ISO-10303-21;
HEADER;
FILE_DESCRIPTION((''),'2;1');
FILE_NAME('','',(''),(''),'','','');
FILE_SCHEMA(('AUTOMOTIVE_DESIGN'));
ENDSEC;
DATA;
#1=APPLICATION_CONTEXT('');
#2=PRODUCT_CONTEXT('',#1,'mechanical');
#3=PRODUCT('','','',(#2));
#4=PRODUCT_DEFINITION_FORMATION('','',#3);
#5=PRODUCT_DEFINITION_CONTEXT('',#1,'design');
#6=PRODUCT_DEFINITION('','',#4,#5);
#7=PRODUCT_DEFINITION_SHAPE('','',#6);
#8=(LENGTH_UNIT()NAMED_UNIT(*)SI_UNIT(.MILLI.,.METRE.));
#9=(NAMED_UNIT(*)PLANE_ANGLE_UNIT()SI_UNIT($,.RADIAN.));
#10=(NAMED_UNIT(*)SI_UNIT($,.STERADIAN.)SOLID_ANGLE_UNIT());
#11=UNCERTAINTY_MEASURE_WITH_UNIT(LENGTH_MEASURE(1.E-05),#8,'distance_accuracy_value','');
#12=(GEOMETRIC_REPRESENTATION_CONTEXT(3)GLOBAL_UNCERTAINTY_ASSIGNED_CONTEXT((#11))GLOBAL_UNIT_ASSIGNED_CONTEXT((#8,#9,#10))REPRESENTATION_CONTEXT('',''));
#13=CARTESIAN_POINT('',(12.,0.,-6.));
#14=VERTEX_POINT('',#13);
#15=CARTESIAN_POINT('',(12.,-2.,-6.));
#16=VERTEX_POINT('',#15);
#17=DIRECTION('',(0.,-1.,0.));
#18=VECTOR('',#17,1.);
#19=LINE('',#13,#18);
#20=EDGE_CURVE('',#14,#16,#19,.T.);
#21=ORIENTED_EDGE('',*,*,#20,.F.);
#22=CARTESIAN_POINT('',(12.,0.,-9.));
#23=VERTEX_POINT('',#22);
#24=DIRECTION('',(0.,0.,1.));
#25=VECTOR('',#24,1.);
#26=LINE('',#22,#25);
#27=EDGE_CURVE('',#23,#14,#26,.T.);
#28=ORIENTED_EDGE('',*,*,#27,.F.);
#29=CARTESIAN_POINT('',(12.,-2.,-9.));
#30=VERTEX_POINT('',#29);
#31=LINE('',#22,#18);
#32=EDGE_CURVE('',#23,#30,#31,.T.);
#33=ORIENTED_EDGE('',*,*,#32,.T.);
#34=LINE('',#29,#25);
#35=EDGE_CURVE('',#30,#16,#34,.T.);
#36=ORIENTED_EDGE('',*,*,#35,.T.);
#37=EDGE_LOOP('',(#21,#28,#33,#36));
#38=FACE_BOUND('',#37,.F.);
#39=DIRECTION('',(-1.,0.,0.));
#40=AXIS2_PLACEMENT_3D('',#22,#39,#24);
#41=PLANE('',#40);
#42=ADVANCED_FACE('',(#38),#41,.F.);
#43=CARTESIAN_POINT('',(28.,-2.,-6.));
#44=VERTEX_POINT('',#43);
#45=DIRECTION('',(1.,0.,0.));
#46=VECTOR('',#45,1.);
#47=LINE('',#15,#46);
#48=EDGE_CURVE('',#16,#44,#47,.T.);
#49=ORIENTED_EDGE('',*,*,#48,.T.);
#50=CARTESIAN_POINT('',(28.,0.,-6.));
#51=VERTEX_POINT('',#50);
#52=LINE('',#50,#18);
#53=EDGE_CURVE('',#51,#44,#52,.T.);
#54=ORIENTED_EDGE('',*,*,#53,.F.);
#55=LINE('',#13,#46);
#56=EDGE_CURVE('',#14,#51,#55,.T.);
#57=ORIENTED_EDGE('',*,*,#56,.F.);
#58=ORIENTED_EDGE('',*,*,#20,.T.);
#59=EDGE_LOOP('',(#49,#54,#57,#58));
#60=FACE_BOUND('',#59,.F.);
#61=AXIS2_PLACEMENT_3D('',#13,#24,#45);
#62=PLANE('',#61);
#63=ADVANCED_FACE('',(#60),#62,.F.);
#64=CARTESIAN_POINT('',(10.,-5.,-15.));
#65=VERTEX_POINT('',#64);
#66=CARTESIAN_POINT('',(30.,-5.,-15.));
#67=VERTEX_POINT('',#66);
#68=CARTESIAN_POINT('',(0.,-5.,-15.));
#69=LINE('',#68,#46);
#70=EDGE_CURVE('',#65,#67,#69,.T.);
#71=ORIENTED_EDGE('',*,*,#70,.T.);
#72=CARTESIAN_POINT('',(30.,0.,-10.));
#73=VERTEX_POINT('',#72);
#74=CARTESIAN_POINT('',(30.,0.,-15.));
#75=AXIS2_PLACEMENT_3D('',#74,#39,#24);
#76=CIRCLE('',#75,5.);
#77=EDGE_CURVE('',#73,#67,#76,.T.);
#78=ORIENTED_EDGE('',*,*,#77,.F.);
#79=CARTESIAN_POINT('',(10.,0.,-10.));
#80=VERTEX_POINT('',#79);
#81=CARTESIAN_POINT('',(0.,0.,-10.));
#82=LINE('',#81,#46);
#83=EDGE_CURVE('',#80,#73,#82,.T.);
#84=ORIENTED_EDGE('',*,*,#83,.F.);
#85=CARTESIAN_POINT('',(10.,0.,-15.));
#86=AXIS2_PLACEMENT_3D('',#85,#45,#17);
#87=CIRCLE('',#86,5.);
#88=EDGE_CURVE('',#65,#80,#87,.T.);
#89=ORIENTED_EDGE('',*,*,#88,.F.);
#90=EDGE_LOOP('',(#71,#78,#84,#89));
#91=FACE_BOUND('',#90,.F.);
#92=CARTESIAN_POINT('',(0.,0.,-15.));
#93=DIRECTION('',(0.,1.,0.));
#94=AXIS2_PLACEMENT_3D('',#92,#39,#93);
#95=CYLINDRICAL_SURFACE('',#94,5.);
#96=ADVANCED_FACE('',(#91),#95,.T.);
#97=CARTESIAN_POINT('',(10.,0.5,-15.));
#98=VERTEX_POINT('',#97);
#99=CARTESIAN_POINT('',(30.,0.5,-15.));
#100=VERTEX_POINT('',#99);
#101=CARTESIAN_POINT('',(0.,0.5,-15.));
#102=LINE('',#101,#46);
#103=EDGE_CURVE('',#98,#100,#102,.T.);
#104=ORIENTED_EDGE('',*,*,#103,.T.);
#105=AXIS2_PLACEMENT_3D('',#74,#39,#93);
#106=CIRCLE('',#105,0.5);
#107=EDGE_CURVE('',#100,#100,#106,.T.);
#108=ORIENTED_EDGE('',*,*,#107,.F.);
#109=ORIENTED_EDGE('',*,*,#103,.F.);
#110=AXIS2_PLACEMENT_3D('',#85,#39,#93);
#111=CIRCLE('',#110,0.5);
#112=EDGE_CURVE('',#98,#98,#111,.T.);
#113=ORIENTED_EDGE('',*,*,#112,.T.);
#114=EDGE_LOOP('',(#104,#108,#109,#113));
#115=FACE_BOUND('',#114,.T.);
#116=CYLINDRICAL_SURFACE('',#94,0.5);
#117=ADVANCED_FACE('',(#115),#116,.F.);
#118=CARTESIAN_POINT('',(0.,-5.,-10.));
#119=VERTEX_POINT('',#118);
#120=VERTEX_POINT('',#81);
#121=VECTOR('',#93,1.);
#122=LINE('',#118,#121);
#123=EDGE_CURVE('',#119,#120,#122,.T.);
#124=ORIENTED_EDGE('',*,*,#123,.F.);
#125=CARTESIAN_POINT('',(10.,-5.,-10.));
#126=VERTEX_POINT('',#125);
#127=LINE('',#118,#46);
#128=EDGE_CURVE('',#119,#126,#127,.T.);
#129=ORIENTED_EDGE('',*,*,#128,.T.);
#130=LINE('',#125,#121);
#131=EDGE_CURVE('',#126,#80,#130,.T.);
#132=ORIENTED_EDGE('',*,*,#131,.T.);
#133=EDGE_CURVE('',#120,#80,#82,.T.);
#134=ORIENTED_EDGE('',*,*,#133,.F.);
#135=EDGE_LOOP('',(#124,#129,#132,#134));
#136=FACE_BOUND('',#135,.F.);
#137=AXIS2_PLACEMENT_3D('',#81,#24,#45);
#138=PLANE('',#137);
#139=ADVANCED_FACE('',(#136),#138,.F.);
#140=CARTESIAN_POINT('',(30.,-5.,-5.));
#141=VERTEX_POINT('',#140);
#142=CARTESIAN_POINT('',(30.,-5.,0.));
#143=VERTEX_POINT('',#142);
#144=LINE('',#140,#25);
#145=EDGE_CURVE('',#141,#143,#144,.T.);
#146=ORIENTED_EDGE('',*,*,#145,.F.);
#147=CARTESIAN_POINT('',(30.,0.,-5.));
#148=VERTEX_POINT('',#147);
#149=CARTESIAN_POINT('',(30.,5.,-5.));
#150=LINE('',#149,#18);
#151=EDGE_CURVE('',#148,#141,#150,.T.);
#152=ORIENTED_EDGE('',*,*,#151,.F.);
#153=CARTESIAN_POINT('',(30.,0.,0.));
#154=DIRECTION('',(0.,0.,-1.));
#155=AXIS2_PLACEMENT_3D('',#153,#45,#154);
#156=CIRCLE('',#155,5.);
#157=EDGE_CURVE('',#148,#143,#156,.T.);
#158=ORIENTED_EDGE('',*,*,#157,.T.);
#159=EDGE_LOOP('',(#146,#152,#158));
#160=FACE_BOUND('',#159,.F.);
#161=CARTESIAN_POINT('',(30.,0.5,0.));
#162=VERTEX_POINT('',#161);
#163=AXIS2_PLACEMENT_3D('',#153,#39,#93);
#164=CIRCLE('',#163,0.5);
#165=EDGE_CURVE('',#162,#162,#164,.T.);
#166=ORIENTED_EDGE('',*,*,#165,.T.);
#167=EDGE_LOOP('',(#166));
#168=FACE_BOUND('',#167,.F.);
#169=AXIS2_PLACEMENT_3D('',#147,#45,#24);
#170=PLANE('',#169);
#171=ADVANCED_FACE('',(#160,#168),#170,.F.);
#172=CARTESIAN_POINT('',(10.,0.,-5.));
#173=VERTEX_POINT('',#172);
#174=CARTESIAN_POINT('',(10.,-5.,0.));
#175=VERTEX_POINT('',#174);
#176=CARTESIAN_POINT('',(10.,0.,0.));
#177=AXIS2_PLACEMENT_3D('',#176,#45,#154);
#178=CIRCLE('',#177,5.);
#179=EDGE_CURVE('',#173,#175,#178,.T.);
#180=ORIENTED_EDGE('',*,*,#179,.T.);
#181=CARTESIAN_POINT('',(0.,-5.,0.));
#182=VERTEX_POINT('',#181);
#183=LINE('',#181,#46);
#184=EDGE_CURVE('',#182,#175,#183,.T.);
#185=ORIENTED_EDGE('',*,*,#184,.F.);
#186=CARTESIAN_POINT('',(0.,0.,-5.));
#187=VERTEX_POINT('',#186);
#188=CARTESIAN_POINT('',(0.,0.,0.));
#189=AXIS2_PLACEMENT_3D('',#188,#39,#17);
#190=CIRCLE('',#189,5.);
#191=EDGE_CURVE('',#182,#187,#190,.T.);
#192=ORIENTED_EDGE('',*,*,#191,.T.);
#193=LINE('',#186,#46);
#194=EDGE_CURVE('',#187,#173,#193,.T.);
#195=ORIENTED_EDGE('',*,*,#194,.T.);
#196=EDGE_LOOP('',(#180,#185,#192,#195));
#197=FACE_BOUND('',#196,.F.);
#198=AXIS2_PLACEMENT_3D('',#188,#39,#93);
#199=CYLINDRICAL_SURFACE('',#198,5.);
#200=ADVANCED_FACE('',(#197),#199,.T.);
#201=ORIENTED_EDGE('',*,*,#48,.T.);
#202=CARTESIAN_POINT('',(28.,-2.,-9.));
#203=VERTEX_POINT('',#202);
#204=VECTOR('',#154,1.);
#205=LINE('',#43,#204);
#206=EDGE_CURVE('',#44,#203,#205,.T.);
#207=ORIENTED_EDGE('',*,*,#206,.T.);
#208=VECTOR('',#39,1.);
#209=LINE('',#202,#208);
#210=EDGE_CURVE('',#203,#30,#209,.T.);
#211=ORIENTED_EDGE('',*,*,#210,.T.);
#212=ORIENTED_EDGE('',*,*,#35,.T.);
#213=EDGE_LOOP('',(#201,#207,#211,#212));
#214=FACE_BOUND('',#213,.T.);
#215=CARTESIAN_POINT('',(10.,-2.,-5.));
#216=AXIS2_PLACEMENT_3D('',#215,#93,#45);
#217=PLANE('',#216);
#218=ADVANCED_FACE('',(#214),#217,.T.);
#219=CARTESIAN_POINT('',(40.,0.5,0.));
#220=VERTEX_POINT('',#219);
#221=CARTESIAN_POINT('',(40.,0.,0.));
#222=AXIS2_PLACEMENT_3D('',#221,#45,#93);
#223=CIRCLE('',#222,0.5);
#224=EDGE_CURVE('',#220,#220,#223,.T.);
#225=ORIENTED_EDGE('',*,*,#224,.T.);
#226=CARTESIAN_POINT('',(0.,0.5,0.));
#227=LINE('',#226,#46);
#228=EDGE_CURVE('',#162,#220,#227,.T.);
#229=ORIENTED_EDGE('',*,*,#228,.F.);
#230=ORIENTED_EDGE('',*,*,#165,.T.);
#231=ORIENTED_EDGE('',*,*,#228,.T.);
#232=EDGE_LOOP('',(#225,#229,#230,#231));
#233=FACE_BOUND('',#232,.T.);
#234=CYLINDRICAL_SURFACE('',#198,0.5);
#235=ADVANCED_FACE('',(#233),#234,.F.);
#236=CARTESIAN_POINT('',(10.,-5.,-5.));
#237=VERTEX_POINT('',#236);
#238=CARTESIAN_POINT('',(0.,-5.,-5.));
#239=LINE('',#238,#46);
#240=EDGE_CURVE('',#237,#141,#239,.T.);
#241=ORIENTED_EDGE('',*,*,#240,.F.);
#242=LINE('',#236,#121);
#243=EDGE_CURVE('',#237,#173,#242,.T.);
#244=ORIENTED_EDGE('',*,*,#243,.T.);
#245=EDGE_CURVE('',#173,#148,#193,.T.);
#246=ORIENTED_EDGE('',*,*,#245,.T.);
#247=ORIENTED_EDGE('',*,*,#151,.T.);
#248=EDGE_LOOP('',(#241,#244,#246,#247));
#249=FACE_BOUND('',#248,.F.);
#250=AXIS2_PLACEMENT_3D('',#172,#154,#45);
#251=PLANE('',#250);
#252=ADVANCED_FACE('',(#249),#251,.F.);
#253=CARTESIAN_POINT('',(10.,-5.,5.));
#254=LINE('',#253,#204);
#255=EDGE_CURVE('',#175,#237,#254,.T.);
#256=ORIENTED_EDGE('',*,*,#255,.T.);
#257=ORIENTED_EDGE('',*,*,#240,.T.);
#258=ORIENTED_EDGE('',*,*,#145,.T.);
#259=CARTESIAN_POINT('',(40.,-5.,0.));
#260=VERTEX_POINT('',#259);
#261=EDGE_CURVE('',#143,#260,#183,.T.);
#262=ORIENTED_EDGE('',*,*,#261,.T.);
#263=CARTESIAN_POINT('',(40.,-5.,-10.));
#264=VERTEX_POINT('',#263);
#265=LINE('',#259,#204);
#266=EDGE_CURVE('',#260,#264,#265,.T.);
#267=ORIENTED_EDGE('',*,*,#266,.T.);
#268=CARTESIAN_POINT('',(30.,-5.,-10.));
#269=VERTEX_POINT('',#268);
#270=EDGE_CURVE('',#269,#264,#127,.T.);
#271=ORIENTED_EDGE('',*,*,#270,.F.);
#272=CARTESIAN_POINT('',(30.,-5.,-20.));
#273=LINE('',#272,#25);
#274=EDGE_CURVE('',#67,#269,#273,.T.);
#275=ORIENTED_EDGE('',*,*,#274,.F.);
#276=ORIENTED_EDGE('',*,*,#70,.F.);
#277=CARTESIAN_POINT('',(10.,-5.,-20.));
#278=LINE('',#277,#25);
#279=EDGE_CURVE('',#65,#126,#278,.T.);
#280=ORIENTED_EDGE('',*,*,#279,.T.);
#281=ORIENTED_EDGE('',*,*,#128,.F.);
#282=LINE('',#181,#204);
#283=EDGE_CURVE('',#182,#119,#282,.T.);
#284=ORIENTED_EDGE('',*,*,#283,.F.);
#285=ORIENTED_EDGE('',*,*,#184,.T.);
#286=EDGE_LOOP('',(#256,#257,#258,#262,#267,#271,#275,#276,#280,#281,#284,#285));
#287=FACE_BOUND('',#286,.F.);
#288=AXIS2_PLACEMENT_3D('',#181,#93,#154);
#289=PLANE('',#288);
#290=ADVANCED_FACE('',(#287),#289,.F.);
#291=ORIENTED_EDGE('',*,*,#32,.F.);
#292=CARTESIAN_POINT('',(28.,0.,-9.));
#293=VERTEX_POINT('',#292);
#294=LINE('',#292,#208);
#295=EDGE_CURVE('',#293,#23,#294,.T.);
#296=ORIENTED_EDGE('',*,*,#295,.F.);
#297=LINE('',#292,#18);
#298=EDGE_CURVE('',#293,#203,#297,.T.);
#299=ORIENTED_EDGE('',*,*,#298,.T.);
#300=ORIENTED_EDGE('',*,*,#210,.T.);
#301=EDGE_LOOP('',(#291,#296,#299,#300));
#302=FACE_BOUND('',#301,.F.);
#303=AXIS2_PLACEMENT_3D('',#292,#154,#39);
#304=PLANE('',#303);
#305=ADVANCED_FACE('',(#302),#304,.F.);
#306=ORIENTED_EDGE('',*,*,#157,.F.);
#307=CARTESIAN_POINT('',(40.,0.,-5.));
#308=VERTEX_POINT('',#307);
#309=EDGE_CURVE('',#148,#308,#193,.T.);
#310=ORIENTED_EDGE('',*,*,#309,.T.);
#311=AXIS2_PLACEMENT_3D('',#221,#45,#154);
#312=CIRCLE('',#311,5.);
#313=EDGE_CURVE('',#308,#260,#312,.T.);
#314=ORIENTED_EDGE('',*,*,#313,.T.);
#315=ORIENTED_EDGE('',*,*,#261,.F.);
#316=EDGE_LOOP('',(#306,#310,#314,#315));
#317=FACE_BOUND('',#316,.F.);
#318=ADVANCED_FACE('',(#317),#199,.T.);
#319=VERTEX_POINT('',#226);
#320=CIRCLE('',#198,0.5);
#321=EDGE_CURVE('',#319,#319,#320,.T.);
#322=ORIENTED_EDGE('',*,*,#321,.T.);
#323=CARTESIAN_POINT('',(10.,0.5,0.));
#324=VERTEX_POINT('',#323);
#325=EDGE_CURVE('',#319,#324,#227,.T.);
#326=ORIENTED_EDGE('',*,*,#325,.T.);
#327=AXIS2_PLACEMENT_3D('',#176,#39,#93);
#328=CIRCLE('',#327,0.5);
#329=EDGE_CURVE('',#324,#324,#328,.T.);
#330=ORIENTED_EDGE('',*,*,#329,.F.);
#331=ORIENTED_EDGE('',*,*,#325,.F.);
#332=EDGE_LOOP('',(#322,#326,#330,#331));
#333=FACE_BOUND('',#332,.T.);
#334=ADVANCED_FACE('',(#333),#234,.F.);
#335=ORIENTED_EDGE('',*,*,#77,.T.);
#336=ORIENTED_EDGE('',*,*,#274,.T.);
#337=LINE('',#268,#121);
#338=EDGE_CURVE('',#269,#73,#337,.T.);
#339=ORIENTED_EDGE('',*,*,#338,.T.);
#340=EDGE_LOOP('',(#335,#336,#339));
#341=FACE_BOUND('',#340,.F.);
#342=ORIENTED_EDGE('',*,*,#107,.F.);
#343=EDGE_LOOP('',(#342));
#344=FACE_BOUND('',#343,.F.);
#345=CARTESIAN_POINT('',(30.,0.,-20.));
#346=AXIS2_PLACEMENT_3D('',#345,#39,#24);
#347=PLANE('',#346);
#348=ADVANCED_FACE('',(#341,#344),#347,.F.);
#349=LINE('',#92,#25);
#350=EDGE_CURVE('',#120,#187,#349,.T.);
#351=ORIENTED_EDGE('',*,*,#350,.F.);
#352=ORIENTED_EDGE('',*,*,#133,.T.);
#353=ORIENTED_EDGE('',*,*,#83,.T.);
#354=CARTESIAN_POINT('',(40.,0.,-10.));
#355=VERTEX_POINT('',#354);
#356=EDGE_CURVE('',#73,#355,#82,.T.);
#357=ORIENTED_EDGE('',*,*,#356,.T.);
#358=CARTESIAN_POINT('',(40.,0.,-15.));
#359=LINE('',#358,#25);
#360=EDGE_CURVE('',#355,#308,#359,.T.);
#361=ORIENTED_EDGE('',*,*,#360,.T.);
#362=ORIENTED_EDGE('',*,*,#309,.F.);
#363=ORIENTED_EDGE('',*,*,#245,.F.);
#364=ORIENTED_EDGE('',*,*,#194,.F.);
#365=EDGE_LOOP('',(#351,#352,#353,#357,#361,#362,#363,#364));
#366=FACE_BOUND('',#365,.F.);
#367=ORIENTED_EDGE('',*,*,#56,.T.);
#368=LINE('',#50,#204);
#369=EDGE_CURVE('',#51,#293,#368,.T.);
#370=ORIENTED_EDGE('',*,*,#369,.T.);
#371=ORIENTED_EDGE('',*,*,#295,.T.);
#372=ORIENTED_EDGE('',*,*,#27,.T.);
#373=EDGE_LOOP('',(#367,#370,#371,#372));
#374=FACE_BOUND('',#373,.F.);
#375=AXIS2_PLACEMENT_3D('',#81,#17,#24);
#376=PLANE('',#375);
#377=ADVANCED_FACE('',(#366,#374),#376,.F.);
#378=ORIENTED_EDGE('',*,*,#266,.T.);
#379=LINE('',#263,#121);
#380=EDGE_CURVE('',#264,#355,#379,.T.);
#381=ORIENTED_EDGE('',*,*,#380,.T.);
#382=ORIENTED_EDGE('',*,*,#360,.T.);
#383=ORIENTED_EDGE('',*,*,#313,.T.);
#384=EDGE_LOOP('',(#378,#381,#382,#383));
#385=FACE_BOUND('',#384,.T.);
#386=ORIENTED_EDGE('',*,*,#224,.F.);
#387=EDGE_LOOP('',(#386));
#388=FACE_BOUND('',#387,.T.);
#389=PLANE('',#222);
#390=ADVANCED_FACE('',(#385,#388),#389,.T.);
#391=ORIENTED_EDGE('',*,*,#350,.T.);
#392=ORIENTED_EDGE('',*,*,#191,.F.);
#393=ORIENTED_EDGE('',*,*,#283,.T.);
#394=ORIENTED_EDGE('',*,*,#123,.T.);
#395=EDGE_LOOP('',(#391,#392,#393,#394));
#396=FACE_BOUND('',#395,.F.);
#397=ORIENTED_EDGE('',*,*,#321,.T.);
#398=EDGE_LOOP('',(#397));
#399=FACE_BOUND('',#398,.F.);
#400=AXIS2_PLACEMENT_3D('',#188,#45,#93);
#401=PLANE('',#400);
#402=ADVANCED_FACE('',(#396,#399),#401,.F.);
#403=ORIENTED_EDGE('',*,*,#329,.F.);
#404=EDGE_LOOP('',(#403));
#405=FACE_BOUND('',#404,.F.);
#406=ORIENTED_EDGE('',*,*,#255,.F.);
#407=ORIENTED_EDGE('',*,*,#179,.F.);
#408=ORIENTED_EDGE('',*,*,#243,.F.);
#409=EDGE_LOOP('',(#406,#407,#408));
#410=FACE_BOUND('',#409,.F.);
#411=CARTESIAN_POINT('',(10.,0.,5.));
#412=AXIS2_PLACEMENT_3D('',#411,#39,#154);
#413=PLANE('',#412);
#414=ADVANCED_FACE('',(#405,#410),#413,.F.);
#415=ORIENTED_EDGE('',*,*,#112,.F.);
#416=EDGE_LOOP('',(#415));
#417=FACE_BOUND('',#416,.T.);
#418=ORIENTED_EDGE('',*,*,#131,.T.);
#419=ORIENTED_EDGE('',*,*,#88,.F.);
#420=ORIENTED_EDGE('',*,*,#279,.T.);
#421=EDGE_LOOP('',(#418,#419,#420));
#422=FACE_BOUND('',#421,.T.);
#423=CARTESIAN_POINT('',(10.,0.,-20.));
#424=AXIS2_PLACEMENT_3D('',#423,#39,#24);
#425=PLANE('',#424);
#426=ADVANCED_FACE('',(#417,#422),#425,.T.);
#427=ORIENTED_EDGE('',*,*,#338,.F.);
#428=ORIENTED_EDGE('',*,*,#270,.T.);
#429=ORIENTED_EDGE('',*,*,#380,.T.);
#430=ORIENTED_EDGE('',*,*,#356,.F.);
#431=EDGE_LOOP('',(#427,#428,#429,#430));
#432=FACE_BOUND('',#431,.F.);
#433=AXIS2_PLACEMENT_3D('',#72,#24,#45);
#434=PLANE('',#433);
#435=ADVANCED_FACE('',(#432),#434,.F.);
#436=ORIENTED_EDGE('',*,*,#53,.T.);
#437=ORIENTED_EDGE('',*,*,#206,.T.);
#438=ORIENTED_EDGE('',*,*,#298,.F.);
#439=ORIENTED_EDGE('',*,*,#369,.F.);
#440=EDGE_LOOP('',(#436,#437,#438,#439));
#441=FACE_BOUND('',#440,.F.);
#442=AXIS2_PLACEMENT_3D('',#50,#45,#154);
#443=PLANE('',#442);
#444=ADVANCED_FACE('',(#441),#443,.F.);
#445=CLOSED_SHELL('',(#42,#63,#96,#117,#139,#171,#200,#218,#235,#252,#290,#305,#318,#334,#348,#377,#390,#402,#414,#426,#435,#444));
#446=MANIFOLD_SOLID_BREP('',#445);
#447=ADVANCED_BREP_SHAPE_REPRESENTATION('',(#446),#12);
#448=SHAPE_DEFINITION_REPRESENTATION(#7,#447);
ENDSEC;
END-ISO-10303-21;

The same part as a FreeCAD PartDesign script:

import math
import FreeCAD as App
import Part
import Sketcher
Q = App.Units.Quantity


def add_polygon(sketch, points):
    """Adds a closed chain of lines whose ends are joined by coincident constraints."""
    first, n = sketch.GeometryCount, len(points)
    for a, b in zip(points, points[1:] + points[:1]):
        sketch.addGeometry(Part.LineSegment(App.Vector(*a, 0), App.Vector(*b, 0)), False)
    for i in range(n):
        sketch.addConstraint(Sketcher.Constraint("Coincident", first + i, 2, first + (i + 1) % n, 1))

doc = App.newDocument("Part")
body = doc.addObject("PartDesign::Body", "Body")

# Sketch on YZ plane
sketch1 = body.newObject("Sketcher::SketchObject", "Sketch")
sketch1.AttachmentSupport = (doc.getObject("YZ_Plane"), [""])
sketch1.MapMode = "FlatFace"
sketch1.addGeometry([
    Part.LineSegment(App.Vector(-5, 0, 0), App.Vector(-5, -15, 0)),  # 0
    Part.ArcOfCircle(Part.Circle(App.Vector(0, -15, 0), App.Vector(0, 0, 1), 5), math.radians(180), math.radians(450)),  # 1
    Part.LineSegment(App.Vector(0, -10, 0), App.Vector(0, -5, 0)),  # 2
    Part.ArcOfCircle(Part.Circle(App.Vector(0, 0, 0), App.Vector(0, 0, 1), 5), math.radians(-90), math.radians(180)),  # 3
    Part.Circle(App.Vector(0, 0, 0), App.Vector(0, 0, 1), 0.5),  # 4
    Part.Circle(App.Vector(0, -15, 0), App.Vector(0, 0, 1), 0.5),  # 5
], False)
sketch1.addConstraint([
    Sketcher.Constraint("Tangent", 0, 2, 1, 1),
    Sketcher.Constraint("Coincident", 1, 2, 2, 1),
    Sketcher.Constraint("Coincident", 2, 2, 3, 1),
    Sketcher.Constraint("Tangent", 3, 2, 0, 1),
    Sketcher.Constraint("Vertical", 0),
    Sketcher.Constraint("Vertical", 2),
    Sketcher.Constraint("Coincident", 3, 3, -1, 1),
    Sketcher.Constraint("Coincident", 4, 3, -1, 1),
    Sketcher.Constraint("Coincident", 5, 3, 1, 3),
    Sketcher.Constraint("Equal", 1, 3),
    Sketcher.Constraint("Equal", 4, 5),
    Sketcher.Constraint("PointOnObject", 1, 2, -2),
    Sketcher.Constraint("Diameter", 4, Q("1 mm")),
    Sketcher.Constraint("Radius", 1, Q("5 mm")),
    Sketcher.Constraint("DistanceY", 0, 2, 0, 1, Q("15 mm")),
])
pad1 = body.newObject("PartDesign::Pad", "Pad")
pad1.Profile = sketch1
pad1.Length = 40

# Sketch on XZ plane
sketch2 = body.newObject("Sketcher::SketchObject", "Sketch001")
sketch2.AttachmentSupport = (doc.getObject("XZ_Plane"), [""])
sketch2.MapMode = "FlatFace"
add_polygon(sketch2, [(30, -5), (10, -5), (10, 5), (30, 5)])  # lines 0-3
sketch2.addConstraint([
    Sketcher.Constraint("Horizontal", 0),
    Sketcher.Constraint("Vertical", 1),
    Sketcher.Constraint("Horizontal", 2),
    Sketcher.Constraint("Vertical", 3),
    Sketcher.Constraint("DistanceY", 1, 1, 1, 2, Q("10 mm")),
    Sketcher.Constraint("DistanceX", -1, 1, 0, 2, Q("10 mm")),
    Sketcher.Constraint("DistanceX", 0, 2, 0, 1, Q("20 mm")),
    Sketcher.Constraint("DistanceY", 0, 2, -1, 1, Q("5 mm")),
])
pocket1 = body.newObject("PartDesign::Pocket", "Pocket")
pocket1.Profile = sketch2
pocket1.Length = 10
pocket1.Midplane = True

# Sketch on XZ plane
sketch3 = body.newObject("Sketcher::SketchObject", "Sketch002")
sketch3.AttachmentSupport = (doc.getObject("XZ_Plane"), [""])
sketch3.MapMode = "FlatFace"
add_polygon(sketch3, [(0, -20), (0, -10), (10, -10), (10, -20)])  # lines 0-3
add_polygon(sketch3, [(30, -20), (30, -10), (40, -10), (40, -20)])  # lines 4-7
sketch3.addConstraint([
    Sketcher.Constraint("Vertical", 0),
    Sketcher.Constraint("Horizontal", 1),
    Sketcher.Constraint("Vertical", 2),
    Sketcher.Constraint("Horizontal", 3),
    Sketcher.Constraint("Vertical", 4),
    Sketcher.Constraint("Horizontal", 5),
    Sketcher.Constraint("Vertical", 6),
    Sketcher.Constraint("Horizontal", 7),
    Sketcher.Constraint("PointOnObject", 0, 2, -2),
    Sketcher.Constraint("Horizontal", 1, 2, 4, 2),
    Sketcher.Constraint("Horizontal", 3, 2, 6, 2),
    Sketcher.Constraint("Equal", 3, 5),
    Sketcher.Constraint("Equal", 7, 0),
    Sketcher.Constraint("DistanceX", 1, 1, 1, 2, Q("10 mm")),
    Sketcher.Constraint("DistanceY", 0, 2, -1, 1, Q("10 mm")),
    Sketcher.Constraint("DistanceX", -1, 1, 4, 2, Q("30 mm")),
])
pocket2 = body.newObject("PartDesign::Pocket", "Pocket001")
pocket2.Profile = sketch3
pocket2.Length = 10
pocket2.Midplane = True

# Sketch on XZ plane
sketch4 = body.newObject("Sketcher::SketchObject", "Sketch003")
sketch4.AttachmentSupport = (doc.getObject("XZ_Plane"), [""])
sketch4.MapMode = "FlatFace"
add_polygon(sketch4, [(12, -9), (12, -6), (28, -6), (28, -9)])  # lines 0-3
sketch4.addConstraint([
    Sketcher.Constraint("Vertical", 0),
    Sketcher.Constraint("Horizontal", 1),
    Sketcher.Constraint("Vertical", 2),
    Sketcher.Constraint("Horizontal", 3),
    Sketcher.Constraint("DistanceX", 1, 1, 1, 2, Q("16 mm")),
    Sketcher.Constraint("DistanceY", 0, 1, 0, 2, Q("3 mm")),
    Sketcher.Constraint("DistanceX", -1, 1, 0, 2, Q("12 mm")),
    Sketcher.Constraint("DistanceY", 0, 2, -1, 1, Q("6 mm")),
])
pocket3 = body.newObject("PartDesign::Pocket", "Pocket002")
pocket3.Profile = sketch4
pocket3.Length = 2
pocket3.Reversed = True

doc.recompute()
